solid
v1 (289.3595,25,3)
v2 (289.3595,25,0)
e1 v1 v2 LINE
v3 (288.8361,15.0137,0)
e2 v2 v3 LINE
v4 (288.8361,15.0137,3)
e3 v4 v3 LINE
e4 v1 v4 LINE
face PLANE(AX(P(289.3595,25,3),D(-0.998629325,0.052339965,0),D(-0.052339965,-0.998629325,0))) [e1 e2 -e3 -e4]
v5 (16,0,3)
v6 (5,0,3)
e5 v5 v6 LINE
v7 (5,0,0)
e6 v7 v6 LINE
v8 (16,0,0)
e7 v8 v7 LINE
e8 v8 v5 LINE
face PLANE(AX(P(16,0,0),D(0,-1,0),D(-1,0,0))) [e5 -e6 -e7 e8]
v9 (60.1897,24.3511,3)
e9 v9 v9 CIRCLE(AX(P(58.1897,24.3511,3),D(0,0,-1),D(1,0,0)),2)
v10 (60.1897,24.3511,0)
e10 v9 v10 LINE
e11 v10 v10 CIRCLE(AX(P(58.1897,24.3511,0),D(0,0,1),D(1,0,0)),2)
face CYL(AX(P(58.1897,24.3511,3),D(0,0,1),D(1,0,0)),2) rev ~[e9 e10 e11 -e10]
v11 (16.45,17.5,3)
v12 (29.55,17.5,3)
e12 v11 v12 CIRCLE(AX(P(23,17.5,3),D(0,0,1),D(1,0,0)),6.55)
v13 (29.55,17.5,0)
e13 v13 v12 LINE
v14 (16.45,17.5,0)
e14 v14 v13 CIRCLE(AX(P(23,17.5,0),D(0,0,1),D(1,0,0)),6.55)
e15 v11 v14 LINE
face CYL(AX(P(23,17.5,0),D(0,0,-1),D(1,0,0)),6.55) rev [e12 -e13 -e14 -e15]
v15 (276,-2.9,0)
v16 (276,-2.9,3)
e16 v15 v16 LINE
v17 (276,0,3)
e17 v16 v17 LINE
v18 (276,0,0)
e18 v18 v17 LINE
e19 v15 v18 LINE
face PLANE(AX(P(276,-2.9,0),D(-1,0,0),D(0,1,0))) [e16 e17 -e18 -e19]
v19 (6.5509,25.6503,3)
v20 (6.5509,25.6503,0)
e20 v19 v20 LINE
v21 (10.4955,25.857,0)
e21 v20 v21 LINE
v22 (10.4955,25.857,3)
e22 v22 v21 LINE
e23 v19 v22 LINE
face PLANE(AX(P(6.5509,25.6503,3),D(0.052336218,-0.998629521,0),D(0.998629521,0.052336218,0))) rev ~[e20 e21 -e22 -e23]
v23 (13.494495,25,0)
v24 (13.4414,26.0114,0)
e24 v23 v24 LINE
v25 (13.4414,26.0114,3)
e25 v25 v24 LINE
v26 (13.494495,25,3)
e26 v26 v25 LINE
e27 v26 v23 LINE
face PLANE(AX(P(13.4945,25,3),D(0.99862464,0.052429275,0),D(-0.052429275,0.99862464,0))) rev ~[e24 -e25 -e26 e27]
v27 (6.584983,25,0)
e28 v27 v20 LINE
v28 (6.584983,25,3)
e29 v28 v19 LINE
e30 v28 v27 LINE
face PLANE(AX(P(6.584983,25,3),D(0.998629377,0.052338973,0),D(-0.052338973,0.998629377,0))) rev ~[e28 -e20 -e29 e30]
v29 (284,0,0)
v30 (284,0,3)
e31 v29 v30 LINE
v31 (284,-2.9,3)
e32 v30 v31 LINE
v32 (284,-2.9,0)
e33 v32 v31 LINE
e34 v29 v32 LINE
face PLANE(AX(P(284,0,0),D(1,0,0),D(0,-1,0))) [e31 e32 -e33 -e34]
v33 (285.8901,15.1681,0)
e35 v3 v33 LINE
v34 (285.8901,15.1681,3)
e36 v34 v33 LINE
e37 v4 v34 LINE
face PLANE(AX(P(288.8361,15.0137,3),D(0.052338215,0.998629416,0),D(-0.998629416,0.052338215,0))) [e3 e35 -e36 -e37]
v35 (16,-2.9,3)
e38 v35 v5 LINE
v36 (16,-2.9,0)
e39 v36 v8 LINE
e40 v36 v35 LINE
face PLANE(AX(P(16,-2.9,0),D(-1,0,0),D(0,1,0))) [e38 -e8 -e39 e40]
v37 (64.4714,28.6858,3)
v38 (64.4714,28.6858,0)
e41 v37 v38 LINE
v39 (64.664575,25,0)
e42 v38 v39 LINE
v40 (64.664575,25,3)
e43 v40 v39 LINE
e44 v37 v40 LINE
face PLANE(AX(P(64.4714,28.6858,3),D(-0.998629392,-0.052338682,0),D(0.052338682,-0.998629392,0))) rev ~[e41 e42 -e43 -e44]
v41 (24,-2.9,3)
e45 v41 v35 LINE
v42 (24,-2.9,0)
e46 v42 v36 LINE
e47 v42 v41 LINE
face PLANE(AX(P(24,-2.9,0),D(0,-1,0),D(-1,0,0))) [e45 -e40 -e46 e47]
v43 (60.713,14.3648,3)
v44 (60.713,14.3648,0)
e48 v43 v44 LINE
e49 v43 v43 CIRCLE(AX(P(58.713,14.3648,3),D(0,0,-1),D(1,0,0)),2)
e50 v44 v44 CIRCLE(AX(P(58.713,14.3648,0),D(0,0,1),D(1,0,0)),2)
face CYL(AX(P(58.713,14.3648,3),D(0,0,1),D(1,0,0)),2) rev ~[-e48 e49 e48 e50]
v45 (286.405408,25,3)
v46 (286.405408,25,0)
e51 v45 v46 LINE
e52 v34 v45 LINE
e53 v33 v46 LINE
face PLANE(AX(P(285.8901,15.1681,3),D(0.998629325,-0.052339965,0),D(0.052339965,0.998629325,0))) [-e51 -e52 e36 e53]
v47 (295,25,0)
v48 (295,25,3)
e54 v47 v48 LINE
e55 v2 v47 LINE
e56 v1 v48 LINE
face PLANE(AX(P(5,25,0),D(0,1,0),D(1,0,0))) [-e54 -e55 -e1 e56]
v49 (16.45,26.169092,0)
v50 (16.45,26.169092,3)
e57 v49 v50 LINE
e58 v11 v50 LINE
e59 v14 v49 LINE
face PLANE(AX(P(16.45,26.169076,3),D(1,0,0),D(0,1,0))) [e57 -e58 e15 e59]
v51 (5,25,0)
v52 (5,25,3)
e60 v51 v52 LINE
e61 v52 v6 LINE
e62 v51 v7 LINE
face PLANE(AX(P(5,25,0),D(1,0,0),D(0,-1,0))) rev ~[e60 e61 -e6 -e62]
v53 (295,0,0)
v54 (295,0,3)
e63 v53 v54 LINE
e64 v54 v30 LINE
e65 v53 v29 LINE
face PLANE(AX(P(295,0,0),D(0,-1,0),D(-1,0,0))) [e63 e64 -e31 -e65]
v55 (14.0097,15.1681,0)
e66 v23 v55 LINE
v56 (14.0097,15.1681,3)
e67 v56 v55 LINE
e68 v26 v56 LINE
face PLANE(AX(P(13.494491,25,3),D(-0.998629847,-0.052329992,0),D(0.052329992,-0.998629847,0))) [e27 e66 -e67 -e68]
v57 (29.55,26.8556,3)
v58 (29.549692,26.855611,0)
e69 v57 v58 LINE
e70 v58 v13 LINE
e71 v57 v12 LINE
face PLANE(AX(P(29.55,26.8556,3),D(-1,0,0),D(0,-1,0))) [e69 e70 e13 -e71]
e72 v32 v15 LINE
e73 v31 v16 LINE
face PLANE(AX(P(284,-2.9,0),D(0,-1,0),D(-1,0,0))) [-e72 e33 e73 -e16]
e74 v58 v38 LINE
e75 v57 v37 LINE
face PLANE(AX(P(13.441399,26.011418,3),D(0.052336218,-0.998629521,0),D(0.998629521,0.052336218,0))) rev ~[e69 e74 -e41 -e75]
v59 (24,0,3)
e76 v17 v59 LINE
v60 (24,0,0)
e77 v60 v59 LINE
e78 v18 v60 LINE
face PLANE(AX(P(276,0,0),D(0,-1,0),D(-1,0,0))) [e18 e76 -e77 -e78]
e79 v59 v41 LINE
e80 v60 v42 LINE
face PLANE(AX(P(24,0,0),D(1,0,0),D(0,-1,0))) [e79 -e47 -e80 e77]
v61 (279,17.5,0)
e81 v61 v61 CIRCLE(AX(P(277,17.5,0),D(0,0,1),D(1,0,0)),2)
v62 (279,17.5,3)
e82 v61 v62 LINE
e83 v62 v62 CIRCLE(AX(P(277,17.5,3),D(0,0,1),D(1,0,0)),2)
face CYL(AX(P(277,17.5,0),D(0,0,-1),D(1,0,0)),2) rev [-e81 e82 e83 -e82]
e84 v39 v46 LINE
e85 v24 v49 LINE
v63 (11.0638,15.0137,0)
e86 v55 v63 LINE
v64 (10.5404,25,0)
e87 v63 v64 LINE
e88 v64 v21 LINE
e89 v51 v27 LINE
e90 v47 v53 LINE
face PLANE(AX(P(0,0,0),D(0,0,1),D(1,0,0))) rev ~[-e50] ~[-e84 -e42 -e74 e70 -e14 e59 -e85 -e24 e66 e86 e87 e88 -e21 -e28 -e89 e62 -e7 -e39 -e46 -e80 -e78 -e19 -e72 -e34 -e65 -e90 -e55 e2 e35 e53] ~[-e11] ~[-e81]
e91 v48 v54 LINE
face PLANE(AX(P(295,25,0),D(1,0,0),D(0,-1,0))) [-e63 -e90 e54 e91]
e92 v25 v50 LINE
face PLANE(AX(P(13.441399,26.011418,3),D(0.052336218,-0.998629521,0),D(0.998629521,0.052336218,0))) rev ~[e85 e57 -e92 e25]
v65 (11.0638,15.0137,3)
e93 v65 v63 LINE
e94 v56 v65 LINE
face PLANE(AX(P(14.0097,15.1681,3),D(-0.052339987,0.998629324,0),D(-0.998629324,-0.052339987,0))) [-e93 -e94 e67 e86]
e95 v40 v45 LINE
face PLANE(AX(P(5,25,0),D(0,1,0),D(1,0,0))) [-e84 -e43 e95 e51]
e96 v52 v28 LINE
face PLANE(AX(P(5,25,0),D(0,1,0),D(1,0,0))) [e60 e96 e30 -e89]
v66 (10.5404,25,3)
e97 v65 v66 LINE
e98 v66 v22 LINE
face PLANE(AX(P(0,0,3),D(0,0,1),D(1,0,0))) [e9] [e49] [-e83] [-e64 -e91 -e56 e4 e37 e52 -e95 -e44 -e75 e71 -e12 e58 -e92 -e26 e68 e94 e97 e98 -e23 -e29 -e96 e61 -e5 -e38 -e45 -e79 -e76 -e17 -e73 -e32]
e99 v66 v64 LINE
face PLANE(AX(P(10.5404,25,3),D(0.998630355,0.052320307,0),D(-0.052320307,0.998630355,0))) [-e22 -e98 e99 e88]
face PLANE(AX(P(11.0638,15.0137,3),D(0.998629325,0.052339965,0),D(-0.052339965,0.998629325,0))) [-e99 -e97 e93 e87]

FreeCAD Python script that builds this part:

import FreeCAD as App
import Part
import Sketcher

V = App.Vector
Q = App.Units.Quantity

doc = App.newDocument("Part")
body = doc.addObject("PartDesign::Body", "Body")

sketch1 = body.newObject("Sketcher::SketchObject", "Sketch")
sketch1.AttachmentSupport = (doc.getObject("XY_Plane"), [""])
sketch1.MapMode = "FlatFace"
sketch1.addGeometry([
    Part.LineSegment(V(295, 25, 0), V(5, 25, 0)),
    Part.LineSegment(V(5, 25, 0), V(5, 0, 0)),
    Part.LineSegment(V(5, 0, 0), V(16, 0, 0)),
    Part.LineSegment(V(16, 0, 0), V(16, -2.9, 0)),
    Part.LineSegment(V(16, -2.9, 0), V(24, -2.9, 0)),
    Part.LineSegment(V(24, -2.9, 0), V(24, 0, 0)),
    Part.LineSegment(V(24, 0, 0), V(276, 0, 0)),
    Part.LineSegment(V(276, 0, 0), V(276, -2.9, 0)),
    Part.LineSegment(V(276, -2.9, 0), V(284, -2.9, 0)),
    Part.LineSegment(V(284, -2.9, 0), V(284, 0, 0)),
    Part.LineSegment(V(284, 0, 0), V(295, 0, 0)),
    Part.LineSegment(V(295, 0, 0), V(295, 25, 0)),
    Part.Circle(V(23, 17.5, 0), V(0, 0, 1), 6.5),
    Part.Circle(V(277, 17.5, 0), V(0, 0, 1), 2),
], False)
sketch1.addConstraint([
    Sketcher.Constraint("Coincident", 0, 2, 1, 1),
    Sketcher.Constraint("Coincident", 1, 2, 2, 1),
    Sketcher.Constraint("Coincident", 2, 2, 3, 1),
    Sketcher.Constraint("Coincident", 3, 2, 4, 1),
    Sketcher.Constraint("Coincident", 4, 2, 5, 1),
    Sketcher.Constraint("Coincident", 5, 2, 6, 1),
    Sketcher.Constraint("Coincident", 6, 2, 7, 1),
    Sketcher.Constraint("Coincident", 7, 2, 8, 1),
    Sketcher.Constraint("Coincident", 8, 2, 9, 1),
    Sketcher.Constraint("Coincident", 9, 2, 10, 1),
    Sketcher.Constraint("Coincident", 10, 2, 11, 1),
    Sketcher.Constraint("Coincident", 11, 2, 0, 1),
    Sketcher.Constraint("Horizontal", 0),
    Sketcher.Constraint("Vertical", 1),
    Sketcher.Constraint("Horizontal", 2),
    Sketcher.Constraint("Vertical", 3),
    Sketcher.Constraint("Horizontal", 4),
    Sketcher.Constraint("Vertical", 5),
    Sketcher.Constraint("Horizontal", 6),
    Sketcher.Constraint("Vertical", 7),
    Sketcher.Constraint("Horizontal", 8),
    Sketcher.Constraint("Vertical", 9),
    Sketcher.Constraint("Horizontal", 10),
    Sketcher.Constraint("Vertical", 11),
    Sketcher.Constraint("PointOnObject", 1, 2, -1),
    Sketcher.Constraint("PointOnObject", 5, 2, -1),
    Sketcher.Constraint("PointOnObject", 9, 2, -1),
    Sketcher.Constraint("Horizontal", 12, 3, 13, 3),
    Sketcher.Constraint("Horizontal", 4, 2, 7, 2),
    Sketcher.Constraint("Equal", 4, 8),
    Sketcher.Constraint("Equal", 2, 10),
    Sketcher.Constraint("Diameter", 13, 4.0),
    Sketcher.Constraint("Diameter", 12, 13.1),
    Sketcher.Constraint("DistanceX", 4, 1, 4, 2, 8.0),
    Sketcher.Constraint("DistanceX", 6, 1, 6, 2, 252.0),
    Sketcher.Constraint("DistanceY", 1, 2, 1, 1, 25.0),
    Sketcher.Constraint("DistanceY", 3, 2, 3, 1, 2.9),
    Sketcher.Constraint("DistanceX", -1, 1, 12, 3, 23.0),
    Sketcher.Constraint("DistanceX", -1, 1, 0, 2, 5.0),
    Sketcher.Constraint("DistanceY", 12, 3, 0, 2, 7.5),
    Sketcher.Constraint("DistanceX", 0, 2, 0, 1, 290.0),
    Sketcher.Constraint("DistanceX", -1, 1, 13, 3, 277.0),
])
pad1 = body.newObject("PartDesign::Pad", "Pad")
pad1.Profile = sketch1
pad1.Length = 3

sketch2 = body.newObject("Sketcher::SketchObject", "Sketch001")
sketch2.AttachmentSupport = (doc.getObject("XY_Plane"), [""])
sketch2.MapMode = "FlatFace"
sketch2.AttachmentOffset = App.Placement(V(0, 0, 3), App.Rotation())
sketch2.addGeometry([
    Part.LineSegment(V(289.4, 25, 0), V(286.4, 25, 0)),
    Part.LineSegment(V(286.4, 25, 0), V(285.9, 15.2, 0)),
    Part.LineSegment(V(285.9, 15.2, 0), V(288.8, 15, 0)),
    Part.LineSegment(V(288.8, 15, 0), V(289.4, 25, 0)),
    Part.LineSegment(V(13.5, 25, 0), V(10.5, 25, 0)),
    Part.LineSegment(V(10.5, 25, 0), V(11.1, 15, 0)),
    Part.LineSegment(V(11.1, 15, 0), V(14, 15.2, 0)),
    Part.LineSegment(V(14, 15.2, 0), V(13.5, 25, 0)),
], False)
sketch2.addConstraint([
    Sketcher.Constraint("Coincident", 0, 2, 1, 1),
    Sketcher.Constraint("Coincident", 1, 2, 2, 1),
    Sketcher.Constraint("Coincident", 2, 2, 3, 1),
    Sketcher.Constraint("Coincident", 3, 2, 0, 1),
    Sketcher.Constraint("Coincident", 4, 2, 5, 1),
    Sketcher.Constraint("Coincident", 5, 2, 6, 1),
    Sketcher.Constraint("Coincident", 6, 2, 7, 1),
    Sketcher.Constraint("Coincident", 7, 2, 4, 1),
    Sketcher.Constraint("Horizontal", 0),
    Sketcher.Constraint("Horizontal", 4),
    Sketcher.Constraint("Perpendicular", 1, 2),
    Sketcher.Constraint("Perpendicular", 2, 3),
    Sketcher.Constraint("Perpendicular", 5, 6),
    Sketcher.Constraint("Perpendicular", 6, 7),
    Sketcher.Constraint("Horizontal", 3, 2, 4, 2),
    Sketcher.Constraint("Horizontal", 2, 2, 5, 2),
    Sketcher.Constraint("Horizontal", 1, 2, 6, 2),
    Sketcher.Constraint("Equal", 0, 4),
    Sketcher.Constraint("Angle", 3, Q("86.9998 deg")),
    Sketcher.Constraint("Distance", 3, 10.0),
    Sketcher.Constraint("Distance", 2, 2.95),
    Sketcher.Constraint("DistanceY", -1, 1, 0, 2, 25.0),
    Sketcher.Constraint("DistanceX", -1, 1, 1, 2, 285.89),
    Sketcher.Constraint("DistanceX", 4, 2, 0, 2, 275.865),
])
pocket1 = body.newObject("PartDesign::Pocket", "Pocket")
pocket1.Profile = sketch2
pocket1.Length = 3

sketch3 = body.newObject("Sketcher::SketchObject", "Sketch002")
sketch3.AttachmentSupport = (doc.getObject("XY_Plane"), [""])
sketch3.MapMode = "FlatFace"
sketch3.AttachmentOffset = App.Placement(V(0, 0, 3), App.Rotation())
sketch3.addGeometry([
    Part.LineSegment(V(64.7, 25, 0), V(64.5, 28.7, 0)),
    Part.LineSegment(V(64.5, 28.7, 0), V(13.4, 26, 0)),
    Part.LineSegment(V(13.4, 26, 0), V(13.5, 25, 0)),
    Part.LineSegment(V(13.5, 25, 0), V(64.7, 25, 0)),
    Part.LineSegment(V(10.5, 25, 0), V(10.5, 25.9, 0)),
    Part.LineSegment(V(10.5, 25.9, 0), V(6.6, 25.7, 0)),
    Part.LineSegment(V(6.6, 25.7, 0), V(6.6, 25, 0)),
    Part.LineSegment(V(6.6, 25, 0), V(10.5, 25, 0)),
], False)
sketch3.addConstraint([
    Sketcher.Constraint("Coincident", 0, 2, 1, 1),
    Sketcher.Constraint("Coincident", 1, 2, 2, 1),
    Sketcher.Constraint("Coincident", 2, 2, 3, 1),
    Sketcher.Constraint("Coincident", 3, 2, 0, 1),
    Sketcher.Constraint("Coincident", 4, 2, 5, 1),
    Sketcher.Constraint("Coincident", 5, 2, 6, 1),
    Sketcher.Constraint("Coincident", 6, 2, 7, 1),
    Sketcher.Constraint("Coincident", 7, 2, 4, 1),
    Sketcher.Constraint("Horizontal", 3),
    Sketcher.Constraint("Horizontal", 7),
    Sketcher.Constraint("Perpendicular", 0, 1),
    Sketcher.Constraint("Perpendicular", 1, 2),
    Sketcher.Constraint("Parallel", 2, 4),
    Sketcher.Constraint("Perpendicular", 4, 5),
    Sketcher.Constraint("Perpendicular", 5, 6),
    Sketcher.Constraint("Horizontal", 3, 2, 6, 2),
    Sketcher.Constraint("Angle", 0, Q("93.0002 deg")),
    Sketcher.Constraint("DistanceY", -1, 1, 2, 2, 25.0),
    Sketcher.Constraint("Distance", 1, 51.1),
    Sketcher.Constraint("Distance", 5, 3.95),
    Sketcher.Constraint("DistanceY", -1, 1, 4, 2, 25.857),
    Sketcher.Constraint("DistanceX", -1, 1, 5, 2, 6.551),
    Sketcher.Constraint("DistanceX", 1, 2, 2, 2, 0.053),
    Sketcher.Constraint("DistanceX", 4, 2, 1, 2, 2.946),
])
pad2 = body.newObject("PartDesign::Pad", "Pad001")
pad2.Profile = sketch3
pad2.Length = 3
pad2.Reversed = True

sketch4 = body.newObject("Sketcher::SketchObject", "Sketch003")
sketch4.AttachmentSupport = (doc.getObject("XY_Plane"), [""])
sketch4.MapMode = "FlatFace"
sketch4.AttachmentOffset = App.Placement(V(0, 0, 3), App.Rotation())
sketch4.addGeometry([
    Part.Circle(V(58.7, 14.4, 0), V(0, 0, 1), 2),
    Part.Circle(V(58.2, 24.4, 0), V(0, 0, 1), 2),
], False)
sketch4.addConstraint([
    Sketcher.Constraint("Equal", 0, 1),
    Sketcher.Constraint("Diameter", 0, 4.0),
    Sketcher.Constraint("DistanceX", -1, 1, 0, 3, 58.713),
    Sketcher.Constraint("DistanceY", -1, 1, 1, 3, 24.351),
    Sketcher.Constraint("DistanceY", -1, 1, 0, 3, 14.3648),
    Sketcher.Constraint("DistanceX", -1, 1, 1, 3, 58.1897),
])
pocket2 = body.newObject("PartDesign::Pocket", "Pocket001")
pocket2.Profile = sketch4
pocket2.Length = 3

sketch5 = body.newObject("Sketcher::SketchObject", "Sketch004")
sketch5.AttachmentSupport = (doc.getObject("XY_Plane"), [""])
sketch5.MapMode = "FlatFace"
sketch5.AttachmentOffset = App.Placement(V(0, 0, 3), App.Rotation())
sketch5.addGeometry([
    Part.LineSegment(V(30, 27, 0), V(16, 27, 0)),
    Part.LineSegment(V(16, 27, 0), V(16, 18, 0)),
    Part.LineSegment(V(16, 18, 0), V(30, 18, 0)),
    Part.LineSegment(V(30, 18, 0), V(30, 27, 0)),
], False)
sketch5.addConstraint([
    Sketcher.Constraint("Coincident", 0, 2, 1, 1),
    Sketcher.Constraint("Coincident", 1, 2, 2, 1),
    Sketcher.Constraint("Coincident", 2, 2, 3, 1),
    Sketcher.Constraint("Coincident", 3, 2, 0, 1),
    Sketcher.Constraint("Horizontal", 0),
    Sketcher.Constraint("Vertical", 1),
    Sketcher.Constraint("Horizontal", 2),
    Sketcher.Constraint("Vertical", 3),
    Sketcher.Constraint("DistanceX", 0, 2, 0, 1, 13.1),
    Sketcher.Constraint("DistanceY", -1, 1, 1, 2, 17.5),
    Sketcher.Constraint("DistanceX", -1, 1, 0, 2, 16.45),
    Sketcher.Constraint("DistanceY", 1, 2, 1, 1, 9.3556),
])
pocket3 = body.newObject("PartDesign::Pocket", "Pocket002")
pocket3.Profile = sketch5
pocket3.Length = 10

doc.recompute()
